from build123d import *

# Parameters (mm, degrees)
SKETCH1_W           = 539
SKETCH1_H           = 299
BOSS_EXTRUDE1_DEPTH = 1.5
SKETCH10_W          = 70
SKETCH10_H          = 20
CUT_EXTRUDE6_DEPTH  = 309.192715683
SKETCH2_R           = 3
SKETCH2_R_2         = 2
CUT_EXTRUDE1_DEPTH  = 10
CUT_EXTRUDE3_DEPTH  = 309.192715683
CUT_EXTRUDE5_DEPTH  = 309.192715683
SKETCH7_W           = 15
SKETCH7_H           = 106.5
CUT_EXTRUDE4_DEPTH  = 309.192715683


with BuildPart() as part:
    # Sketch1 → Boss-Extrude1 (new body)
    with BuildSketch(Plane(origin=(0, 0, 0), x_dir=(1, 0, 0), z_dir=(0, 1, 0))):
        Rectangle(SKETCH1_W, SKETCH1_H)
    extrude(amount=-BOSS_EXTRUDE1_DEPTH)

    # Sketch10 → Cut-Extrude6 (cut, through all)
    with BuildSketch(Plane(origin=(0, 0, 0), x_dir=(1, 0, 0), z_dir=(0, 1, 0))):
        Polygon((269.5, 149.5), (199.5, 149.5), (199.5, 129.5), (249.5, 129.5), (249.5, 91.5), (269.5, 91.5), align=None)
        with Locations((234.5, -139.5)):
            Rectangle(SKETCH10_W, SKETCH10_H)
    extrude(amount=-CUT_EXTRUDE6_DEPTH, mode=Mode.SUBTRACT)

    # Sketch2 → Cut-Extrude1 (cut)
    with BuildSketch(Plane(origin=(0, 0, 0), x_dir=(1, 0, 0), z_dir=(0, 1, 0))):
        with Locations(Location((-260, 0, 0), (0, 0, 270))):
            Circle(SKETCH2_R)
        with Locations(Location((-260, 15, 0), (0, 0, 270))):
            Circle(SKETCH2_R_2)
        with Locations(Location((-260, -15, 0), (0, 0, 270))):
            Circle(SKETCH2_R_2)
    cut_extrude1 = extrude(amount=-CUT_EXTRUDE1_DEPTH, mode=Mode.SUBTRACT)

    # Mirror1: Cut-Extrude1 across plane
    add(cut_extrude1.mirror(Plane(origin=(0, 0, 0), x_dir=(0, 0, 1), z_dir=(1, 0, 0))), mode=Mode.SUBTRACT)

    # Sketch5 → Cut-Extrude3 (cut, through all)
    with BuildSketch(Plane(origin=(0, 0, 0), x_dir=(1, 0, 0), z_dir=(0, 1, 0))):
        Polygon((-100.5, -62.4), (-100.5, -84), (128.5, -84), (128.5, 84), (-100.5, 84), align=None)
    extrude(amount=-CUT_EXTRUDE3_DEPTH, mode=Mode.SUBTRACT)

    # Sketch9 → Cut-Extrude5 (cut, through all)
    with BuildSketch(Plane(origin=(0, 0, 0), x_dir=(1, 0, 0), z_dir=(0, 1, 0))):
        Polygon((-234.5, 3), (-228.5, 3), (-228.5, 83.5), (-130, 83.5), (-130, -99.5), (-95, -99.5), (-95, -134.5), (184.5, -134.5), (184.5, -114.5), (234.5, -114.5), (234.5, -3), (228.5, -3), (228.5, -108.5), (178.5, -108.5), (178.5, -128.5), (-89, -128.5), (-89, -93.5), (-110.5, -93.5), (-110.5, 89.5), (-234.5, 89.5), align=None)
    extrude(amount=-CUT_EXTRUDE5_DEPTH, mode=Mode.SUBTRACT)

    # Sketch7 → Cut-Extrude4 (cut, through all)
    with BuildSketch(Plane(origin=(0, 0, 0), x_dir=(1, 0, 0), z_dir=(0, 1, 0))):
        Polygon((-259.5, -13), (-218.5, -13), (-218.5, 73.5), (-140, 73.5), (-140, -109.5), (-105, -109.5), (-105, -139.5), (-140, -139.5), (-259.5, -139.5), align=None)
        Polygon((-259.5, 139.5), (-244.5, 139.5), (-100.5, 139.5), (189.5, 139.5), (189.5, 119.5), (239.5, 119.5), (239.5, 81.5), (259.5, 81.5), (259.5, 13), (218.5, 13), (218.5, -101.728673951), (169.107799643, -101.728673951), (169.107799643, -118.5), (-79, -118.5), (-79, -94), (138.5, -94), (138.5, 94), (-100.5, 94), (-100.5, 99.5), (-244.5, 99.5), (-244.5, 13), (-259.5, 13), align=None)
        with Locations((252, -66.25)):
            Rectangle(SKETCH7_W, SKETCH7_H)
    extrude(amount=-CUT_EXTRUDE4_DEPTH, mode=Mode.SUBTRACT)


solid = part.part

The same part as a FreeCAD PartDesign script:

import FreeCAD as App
import Part
import Sketcher
from FreeCAD import Vector

doc = App.newDocument("Part")
params = doc.addObject("Spreadsheet::Sheet", "Params")
for row, (alias, value) in enumerate([
    ("sketch1_width", "539 mm"),
    ("sketch1_height", "299 mm"),
    ("pad1_length", "1.5 mm"),
    ("sketch2_width", "70 mm"),
    ("sketch2_width2", "50 mm"),
    ("sketch2_height", "38 mm"),
    ("sketch3_diameter", "6 mm"),
    ("sketch3_diameter2", "4 mm"),
    ("pocket2_length", "10 mm"),
    ("sketch4_width", "229 mm"),
    ("sketch4_height", "168 mm"),
    ("sketch5_width", "6 mm"),
    ("sketch5_width2", "35 mm"),
    ("sketch5_width3", "50 mm"),
    ("sketch5_width4", "124 mm"),
    ("sketch5_height", "183 mm"),
    ("sketch6_width", "41 mm"),
    ("sketch6_width2", "35 mm"),
    ("sketch6_width3", "449 mm"),
    ("sketch6_width4", "15 mm"),
    ("sketch6_width5", "144 mm"),
], start=1):
    params.set(f"A{row}", alias)
    params.set(f"B{row}", "=" + value)
    params.setAlias(f"B{row}", alias)

body = doc.addObject("PartDesign::Body", "Body")

sketch1 = body.newObject("Sketcher::SketchObject", "Sketch")
sketch1.AttachmentSupport = (doc.getObject("XZ_Plane"), [""])
sketch1.MapMode = "FlatFace"
sketch1.addGeometry(Part.LineSegment(Vector(-270, -150, 0), Vector(-270, 150, 0)), False)
sketch1.addGeometry(Part.LineSegment(Vector(-270, 150, 0), Vector(270, 150, 0)), False)
sketch1.addGeometry(Part.LineSegment(Vector(270, 150, 0), Vector(270, -150, 0)), False)
sketch1.addGeometry(Part.LineSegment(Vector(270, -150, 0), Vector(-270, -150, 0)), False)
sketch1.addConstraint(Sketcher.Constraint("Coincident", 0, 2, 1, 1))
sketch1.addConstraint(Sketcher.Constraint("Coincident", 1, 2, 2, 1))
sketch1.addConstraint(Sketcher.Constraint("Coincident", 2, 2, 3, 1))
sketch1.addConstraint(Sketcher.Constraint("Coincident", 3, 2, 0, 1))
sketch1.addConstraint(Sketcher.Constraint("Vertical", 0))
sketch1.addConstraint(Sketcher.Constraint("Horizontal", 1))
sketch1.addConstraint(Sketcher.Constraint("Vertical", 2))
sketch1.addConstraint(Sketcher.Constraint("Horizontal", 3))
sketch1.addConstraint(Sketcher.Constraint("Symmetric", 0, 2, 2, 2, -1, 1))
sketch1.addConstraint(Sketcher.Constraint("DistanceX", 1, 1, 1, 2, 539.0))
sketch1.addConstraint(Sketcher.Constraint("DistanceY", 0, 1, 0, 2, 299.0))
sketch1.setExpression("Constraints[9]", "Params.sketch1_width")
sketch1.setExpression("Constraints[10]", "Params.sketch1_height")
pad1 = body.newObject("PartDesign::Pad", "Pad")
pad1.Profile = sketch1
pad1.setExpression("Length", "Params.pad1_length")

sketch2 = body.newObject("Sketcher::SketchObject", "Sketch001")
sketch2.AttachmentSupport = (doc.getObject("XZ_Plane"), [""])
sketch2.MapMode = "FlatFace"
sketch2.addGeometry(Part.LineSegment(Vector(270, -150, 0), Vector(200, -150, 0)), False)
sketch2.addGeometry(Part.LineSegment(Vector(200, -150, 0), Vector(200, -130, 0)), False)
sketch2.addGeometry(Part.LineSegment(Vector(200, -130, 0), Vector(250, -130, 0)), False)
sketch2.addGeometry(Part.LineSegment(Vector(250, -130, 0), Vector(250, -92, 0)), False)
sketch2.addGeometry(Part.LineSegment(Vector(250, -92, 0), Vector(270, -92, 0)), False)
sketch2.addGeometry(Part.LineSegment(Vector(270, -92, 0), Vector(270, -150, 0)), False)
sketch2.addGeometry(Part.LineSegment(Vector(200, 130, 0), Vector(200, 150, 0)), False)
sketch2.addGeometry(Part.LineSegment(Vector(200, 150, 0), Vector(270, 150, 0)), False)
sketch2.addGeometry(Part.LineSegment(Vector(270, 150, 0), Vector(270, 130, 0)), False)
sketch2.addGeometry(Part.LineSegment(Vector(270, 130, 0), Vector(200, 130, 0)), False)
sketch2.addConstraint(Sketcher.Constraint("Coincident", 0, 2, 1, 1))
sketch2.addConstraint(Sketcher.Constraint("Coincident", 1, 2, 2, 1))
sketch2.addConstraint(Sketcher.Constraint("Coincident", 2, 2, 3, 1))
sketch2.addConstraint(Sketcher.Constraint("Coincident", 3, 2, 4, 1))
sketch2.addConstraint(Sketcher.Constraint("Coincident", 4, 2, 5, 1))
sketch2.addConstraint(Sketcher.Constraint("Coincident", 5, 2, 0, 1))
sketch2.addConstraint(Sketcher.Constraint("Coincident", 6, 2, 7, 1))
sketch2.addConstraint(Sketcher.Constraint("Coincident", 7, 2, 8, 1))
sketch2.addConstraint(Sketcher.Constraint("Coincident", 8, 2, 9, 1))
sketch2.addConstraint(Sketcher.Constraint("Coincident", 9, 2, 6, 1))
sketch2.addConstraint(Sketcher.Constraint("Horizontal", 0))
sketch2.addConstraint(Sketcher.Constraint("Vertical", 1))
sketch2.addConstraint(Sketcher.Constraint("Horizontal", 2))
sketch2.addConstraint(Sketcher.Constraint("Vertical", 3))
sketch2.addConstraint(Sketcher.Constraint("Horizontal", 4))
sketch2.addConstraint(Sketcher.Constraint("Vertical", 5))
sketch2.addConstraint(Sketcher.Constraint("Vertical", 6))
sketch2.addConstraint(Sketcher.Constraint("Horizontal", 7))
sketch2.addConstraint(Sketcher.Constraint("Vertical", 8))
sketch2.addConstraint(Sketcher.Constraint("Horizontal", 9))
sketch2.addConstraint(Sketcher.Constraint("Symmetric", 0, 2, 6, 2, -1))
sketch2.addConstraint(Sketcher.Constraint("Vertical", 5, 2, 7, 2))
sketch2.addConstraint(Sketcher.Constraint("Equal", 4, 1))
sketch2.addConstraint(Sketcher.Constraint("Equal", 1, 6))
sketch2.addConstraint(Sketcher.Constraint("DistanceX", 0, 2, 0, 1, 70.0))
sketch2.addConstraint(Sketcher.Constraint("DistanceX", 2, 1, 2, 2, 50.0))
sketch2.addConstraint(Sketcher.Constraint("DistanceY", 3, 1, 3, 2, 38.0))
sketch2.addConstraint(Sketcher.Constraint("DistanceY", 3, 2, 6, 2, 241.0))
sketch2.addConstraint(Sketcher.Constraint("DistanceX", -1, 1, 0, 2, 199.5))
sketch2.setExpression("Constraints[24]", "Params.sketch2_width")
sketch2.setExpression("Constraints[25]", "Params.sketch2_width2")
sketch2.setExpression("Constraints[26]", "Params.sketch2_height")
pocket1 = body.newObject("PartDesign::Pocket", "Pocket")
pocket1.Profile = sketch2
pocket1.Type = "ThroughAll"
pocket1.Reversed = True

sketch3 = body.newObject("Sketcher::SketchObject", "Sketch002")
sketch3.AttachmentSupport = (doc.getObject("XZ_Plane"), [""])
sketch3.MapMode = "FlatFace"
sketch3.addGeometry(Part.Circle(Vector(-260, 0, 0), Vector(0, 0, 1), 3), False)
sketch3.addGeometry(Part.Circle(Vector(-260, -15, 0), Vector(0, 0, 1), 2), False)
sketch3.addGeometry(Part.Circle(Vector(-260, 15, 0), Vector(0, 0, 1), 2), False)
sketch3.addConstraint(Sketcher.Constraint("Equal", 1, 2))
sketch3.addConstraint(Sketcher.Constraint("Symmetric", 1, 3, 2, 3, -1))
sketch3.addConstraint(Sketcher.Constraint("PointOnObject", 0, 3, -1))
sketch3.addConstraint(Sketcher.Constraint("Vertical", 0, 3, 1, 3))
sketch3.addConstraint(Sketcher.Constraint("Diameter", 0, 6.0))
sketch3.addConstraint(Sketcher.Constraint("Diameter", 1, 4.0))
sketch3.addConstraint(Sketcher.Constraint("DistanceX", 0, 3, -1, 1, 260.0))
sketch3.addConstraint(Sketcher.Constraint("DistanceY", 1, 3, -1, 1, 15.0))
sketch3.setExpression("Constraints[4]", "Params.sketch3_diameter")
sketch3.setExpression("Constraints[5]", "Params.sketch3_diameter2")
pocket2 = body.newObject("PartDesign::Pocket", "Pocket001")
pocket2.Profile = sketch3
pocket2.setExpression("Length", "Params.pocket2_length")
pocket2.Reversed = True
doc.recompute()

mirrored = body.newObject("PartDesign::Mirrored", "Mirrored")
mirrored.Originals = [pocket2]
mirrored.MirrorPlane = (doc.getObject("YZ_Plane"), [""])
body.Tip = mirrored

sketch4 = body.newObject("Sketcher::SketchObject", "Sketch003")
sketch4.AttachmentSupport = (doc.getObject("XZ_Plane"), [""])
sketch4.MapMode = "FlatFace"
sketch4.addGeometry(Part.LineSegment(Vector(-100, 84, 0), Vector(128, 84, 0)), False)
sketch4.addGeometry(Part.LineSegment(Vector(128, 84, 0), Vector(128, -84, 0)), False)
sketch4.addGeometry(Part.LineSegment(Vector(128, -84, 0), Vector(-100, -84, 0)), False)
sketch4.addGeometry(Part.LineSegment(Vector(-100, -84, 0), Vector(-100, 84, 0)), False)
sketch4.addConstraint(Sketcher.Constraint("Coincident", 0, 2, 1, 1))
sketch4.addConstraint(Sketcher.Constraint("Coincident", 1, 2, 2, 1))
sketch4.addConstraint(Sketcher.Constraint("Coincident", 2, 2, 3, 1))
sketch4.addConstraint(Sketcher.Constraint("Coincident", 3, 2, 0, 1))
sketch4.addConstraint(Sketcher.Constraint("Horizontal", 0))
sketch4.addConstraint(Sketcher.Constraint("Vertical", 1))
sketch4.addConstraint(Sketcher.Constraint("Horizontal", 2))
sketch4.addConstraint(Sketcher.Constraint("Vertical", 3))
sketch4.addConstraint(Sketcher.Constraint("DistanceX", 0, 1, 0, 2, 229.0))
sketch4.addConstraint(Sketcher.Constraint("DistanceY", 1, 2, 1, 1, 168.0))
sketch4.addConstraint(Sketcher.Constraint("DistanceY", -1, 1, 0, 2, 84.0))
sketch4.addConstraint(Sketcher.Constraint("DistanceX", -1, 1, 0, 2, 128.5))
sketch4.setExpression("Constraints[8]", "Params.sketch4_width")
sketch4.setExpression("Constraints[9]", "Params.sketch4_height")
pocket3 = body.newObject("PartDesign::Pocket", "Pocket002")
pocket3.Profile = sketch4
pocket3.Type = "ThroughAll"
pocket3.Reversed = True

sketch5 = body.newObject("Sketcher::SketchObject", "Sketch004")
sketch5.AttachmentSupport = (doc.getObject("XZ_Plane"), [""])
sketch5.MapMode = "FlatFace"
sketch5.addGeometry(Part.LineSegment(Vector(-234, -3, 0), Vector(-228, -3, 0)), False)
sketch5.addGeometry(Part.LineSegment(Vector(-228, -3, 0), Vector(-228, -84, 0)), False)
sketch5.addGeometry(Part.LineSegment(Vector(-228, -84, 0), Vector(-130, -84, 0)), False)
sketch5.addGeometry(Part.LineSegment(Vector(-130, -84, 0), Vector(-130, 100, 0)), False)
sketch5.addGeometry(Part.LineSegment(Vector(-130, 100, 0), Vector(-95, 100, 0)), False)
sketch5.addGeometry(Part.LineSegment(Vector(-95, 100, 0), Vector(-95, 134, 0)), False)
sketch5.addGeometry(Part.LineSegment(Vector(-95, 134, 0), Vector(184, 134, 0)), False)
sketch5.addGeometry(Part.LineSegment(Vector(184, 134, 0), Vector(184, 114, 0)), False)
sketch5.addGeometry(Part.LineSegment(Vector(184, 114, 0), Vector(234, 114, 0)), False)
sketch5.addGeometry(Part.LineSegment(Vector(234, 114, 0), Vector(234, 3, 0)), False)
sketch5.addGeometry(Part.LineSegment(Vector(234, 3, 0), Vector(228, 3, 0)), False)
sketch5.addGeometry(Part.LineSegment(Vector(228, 3, 0), Vector(228, 108, 0)), False)
sketch5.addGeometry(Part.LineSegment(Vector(228, 108, 0), Vector(178, 108, 0)), False)
sketch5.addGeometry(Part.LineSegment(Vector(178, 108, 0), Vector(178, 128, 0)), False)
sketch5.addGeometry(Part.LineSegment(Vector(178, 128, 0), Vector(-89, 128, 0)), False)
sketch5.addGeometry(Part.LineSegment(Vector(-89, 128, 0), Vector(-89, 94, 0)), False)
sketch5.addGeometry(Part.LineSegment(Vector(-89, 94, 0), Vector(-110, 94, 0)), False)
sketch5.addGeometry(Part.LineSegment(Vector(-110, 94, 0), Vector(-110, -90, 0)), False)
sketch5.addGeometry(Part.LineSegment(Vector(-110, -90, 0), Vector(-234, -90, 0)), False)
sketch5.addGeometry(Part.LineSegment(Vector(-234, -90, 0), Vector(-234, -3, 0)), False)
sketch5.addConstraint(Sketcher.Constraint("Coincident", 0, 2, 1, 1))
sketch5.addConstraint(Sketcher.Constraint("Coincident", 1, 2, 2, 1))
sketch5.addConstraint(Sketcher.Constraint("Coincident", 2, 2, 3, 1))
sketch5.addConstraint(Sketcher.Constraint("Coincident", 3, 2, 4, 1))
sketch5.addConstraint(Sketcher.Constraint("Coincident", 4, 2, 5, 1))
sketch5.addConstraint(Sketcher.Constraint("Coincident", 5, 2, 6, 1))
sketch5.addConstraint(Sketcher.Constraint("Coincident", 6, 2, 7, 1))
sketch5.addConstraint(Sketcher.Constraint("Coincident", 7, 2, 8, 1))
sketch5.addConstraint(Sketcher.Constraint("Coincident", 8, 2, 9, 1))
sketch5.addConstraint(Sketcher.Constraint("Coincident", 9, 2, 10, 1))
sketch5.addConstraint(Sketcher.Constraint("Coincident", 10, 2, 11, 1))
sketch5.addConstraint(Sketcher.Constraint("Coincident", 11, 2, 12, 1))
sketch5.addConstraint(Sketcher.Constraint("Coincident", 12, 2, 13, 1))
sketch5.addConstraint(Sketcher.Constraint("Coincident", 13, 2, 14, 1))
sketch5.addConstraint(Sketcher.Constraint("Coincident", 14, 2, 15, 1))
sketch5.addConstraint(Sketcher.Constraint("Coincident", 15, 2, 16, 1))
sketch5.addConstraint(Sketcher.Constraint("Coincident", 16, 2, 17, 1))
sketch5.addConstraint(Sketcher.Constraint("Coincident", 17, 2, 18, 1))
sketch5.addConstraint(Sketcher.Constraint("Coincident", 18, 2, 19, 1))
sketch5.addConstraint(Sketcher.Constraint("Coincident", 19, 2, 0, 1))
sketch5.addConstraint(Sketcher.Constraint("Horizontal", 0))
sketch5.addConstraint(Sketcher.Constraint("Vertical", 1))
sketch5.addConstraint(Sketcher.Constraint("Horizontal", 2))
sketch5.addConstraint(Sketcher.Constraint("Vertical", 3))
sketch5.addConstraint(Sketcher.Constraint("Horizontal", 4))
sketch5.addConstraint(Sketcher.Constraint("Vertical", 5))
sketch5.addConstraint(Sketcher.Constraint("Horizontal", 6))
sketch5.addConstraint(Sketcher.Constraint("Vertical", 7))
sketch5.addConstraint(Sketcher.Constraint("Horizontal", 8))
sketch5.addConstraint(Sketcher.Constraint("Vertical", 9))
sketch5.addConstraint(Sketcher.Constraint("Horizontal", 10))
sketch5.addConstraint(Sketcher.Constraint("Vertical", 11))
sketch5.addConstraint(Sketcher.Constraint("Horizontal", 12))
sketch5.addConstraint(Sketcher.Constraint("Vertical", 13))
sketch5.addConstraint(Sketcher.Constraint("Horizontal", 14))
sketch5.addConstraint(Sketcher.Constraint("Vertical", 15))
sketch5.addConstraint(Sketcher.Constraint("Horizontal", 16))
sketch5.addConstraint(Sketcher.Constraint("Vertical", 17))
sketch5.addConstraint(Sketcher.Constraint("Horizontal", 18))
sketch5.addConstraint(Sketcher.Constraint("Vertical", 19))
sketch5.addConstraint(Sketcher.Constraint("Symmetric", 0, 2, 10, 2, -1, 1))
sketch5.addConstraint(Sketcher.Constraint("Equal", 0, 10))
sketch5.addConstraint(Sketcher.Constraint("Equal", 8, 12))
sketch5.addConstraint(Sketcher.Constraint("Equal", 4, 5))
sketch5.addConstraint(Sketcher.Constraint("Equal", 7, 13))
sketch5.addConstraint(Sketcher.Constraint("Equal", 5, 15))
sketch5.addConstraint(Sketcher.Constraint("Equal", 3, 17))
sketch5.addConstraint(Sketcher.Constraint("DistanceX", 0, 1, 0, 2, 6.0))
sketch5.addConstraint(Sketcher.Constraint("DistanceX", 4, 1, 4, 2, 35.0))
sketch5.addConstraint(Sketcher.Constraint("DistanceX", 8, 1, 8, 2, 50.0))
sketch5.addConstraint(Sketcher.Constraint("DistanceX", 18, 2, 18, 1, 124.0))
sketch5.addConstraint(Sketcher.Constraint("DistanceY", 3, 1, 3, 2, 183.0))
sketch5.addConstraint(Sketcher.Constraint("DistanceY", 7, 2, 7, 1, 20.0))
sketch5.addConstraint(Sketcher.Constraint("DistanceX", 2, 1, 2, 2, 98.5))
sketch5.addConstraint(Sketcher.Constraint("DistanceX", 6, 1, 6, 2, 279.5))
sketch5.addConstraint(Sketcher.Constraint("DistanceX", 14, 2, 14, 1, 267.5))
sketch5.addConstraint(Sketcher.Constraint("DistanceY", 1, 2, 1, 1, 80.5))
sketch5.addConstraint(Sketcher.Constraint("DistanceY", 9, 2, 9, 1, 111.5))
sketch5.addConstraint(Sketcher.Constraint("DistanceY", 11, 1, 11, 2, 105.5))
sketch5.setExpression("Constraints[47]", "Params.sketch5_width")
sketch5.setExpression("Constraints[48]", "Params.sketch5_width2")
sketch5.setExpression("Constraints[49]", "Params.sketch5_width3")
sketch5.setExpression("Constraints[50]", "Params.sketch5_width4")
sketch5.setExpression("Constraints[51]", "Params.sketch5_height")
pocket4 = body.newObject("PartDesign::Pocket", "Pocket003")
pocket4.Profile = sketch5
pocket4.Type = "ThroughAll"
pocket4.Reversed = True

sketch6 = body.newObject("Sketcher::SketchObject", "Sketch005")
sketch6.AttachmentSupport = (doc.getObject("XZ_Plane"), [""])
sketch6.MapMode = "FlatFace"
sketch6.addGeometry(Part.LineSegment(Vector(-218, 13, 0), Vector(-260, 13, 0)), False)
sketch6.addGeometry(Part.LineSegment(Vector(-260, 13, 0), Vector(-260, 140, 0)), False)
sketch6.addGeometry(Part.LineSegment(Vector(-260, 140, 0), Vector(-105, 140, 0)), False)
sketch6.addGeometry(Part.LineSegment(Vector(-105, 140, 0), Vector(-105, 110, 0)), False)
sketch6.addGeometry(Part.LineSegment(Vector(-105, 110, 0), Vector(-140, 110, 0)), False)
sketch6.addGeometry(Part.LineSegment(Vector(-140, 110, 0), Vector(-140, -74, 0)), False)
sketch6.addGeometry(Part.LineSegment(Vector(-140, -74, 0), Vector(-218, -74, 0)), False)
sketch6.addGeometry(Part.LineSegment(Vector(-218, -74, 0), Vector(-218, 13, 0)), False)
sketch6.addGeometry(Part.LineSegment(Vector(190, -140, 0), Vector(-260, -140, 0)), False)
sketch6.addGeometry(Part.LineSegment(Vector(-260, -140, 0), Vector(-260, -13, 0)), False)
sketch6.addGeometry(Part.LineSegment(Vector(-260, -13, 0), Vector(-244, -13, 0)), False)
sketch6.addGeometry(Part.LineSegment(Vector(-244, -13, 0), Vector(-244, -100, 0)), False)
sketch6.addGeometry(Part.LineSegment(Vector(-244, -100, 0), Vector(-100, -100, 0)), False)
sketch6.addGeometry(Part.LineSegment(Vector(-100, -100, 0), Vector(-100, -94, 0)), False)
sketch6.addGeometry(Part.LineSegment(Vector(-100, -94, 0), Vector(138, -94, 0)), False)
sketch6.addGeometry(Part.LineSegment(Vector(138, -94, 0), Vector(138, 94, 0)), False)
sketch6.addGeometry(Part.LineSegment(Vector(138, 94, 0), Vector(-79, 94, 0)), False)
sketch6.addGeometry(Part.LineSegment(Vector(-79, 94, 0), Vector(-79, 118, 0)), False)
sketch6.addGeometry(Part.LineSegment(Vector(-79, 118, 0), Vector(169, 118, 0)), False)
sketch6.addGeometry(Part.LineSegment(Vector(169, 118, 0), Vector(169, 102, 0)), False)
sketch6.addGeometry(Part.LineSegment(Vector(169, 102, 0), Vector(218, 102, 0)), False)
sketch6.addGeometry(Part.LineSegment(Vector(218, 102, 0), Vector(218, -13, 0)), False)
sketch6.addGeometry(Part.LineSegment(Vector(218, -13, 0), Vector(260, -13, 0)), False)
sketch6.addGeometry(Part.LineSegment(Vector(260, -13, 0), Vector(260, -82, 0)), False)
sketch6.addGeometry(Part.LineSegment(Vector(260, -82, 0), Vector(240, -82, 0)), False)
sketch6.addGeometry(Part.LineSegment(Vector(240, -82, 0), Vector(240, -120, 0)), False)
sketch6.addGeometry(Part.LineSegment(Vector(240, -120, 0), Vector(190, -120, 0)), False)
sketch6.addGeometry(Part.LineSegment(Vector(190, -120, 0), Vector(190, -140, 0)), False)
sketch6.addGeometry(Part.LineSegment(Vector(244, 13, 0), Vector(244, 120, 0)), False)
sketch6.addGeometry(Part.LineSegment(Vector(244, 120, 0), Vector(260, 120, 0)), False)
sketch6.addGeometry(Part.LineSegment(Vector(260, 120, 0), Vector(260, 13, 0)), False)
sketch6.addGeometry(Part.LineSegment(Vector(260, 13, 0), Vector(244, 13, 0)), False)
sketch6.addConstraint(Sketcher.Constraint("Coincident", 0, 2, 1, 1))
sketch6.addConstraint(Sketcher.Constraint("Coincident", 1, 2, 2, 1))
sketch6.addConstraint(Sketcher.Constraint("Coincident", 2, 2, 3, 1))
sketch6.addConstraint(Sketcher.Constraint("Coincident", 3, 2, 4, 1))
sketch6.addConstraint(Sketcher.Constraint("Coincident", 4, 2, 5, 1))
sketch6.addConstraint(Sketcher.Constraint("Coincident", 5, 2, 6, 1))
sketch6.addConstraint(Sketcher.Constraint("Coincident", 6, 2, 7, 1))
sketch6.addConstraint(Sketcher.Constraint("Coincident", 7, 2, 0, 1))
sketch6.addConstraint(Sketcher.Constraint("Coincident", 8, 2, 9, 1))
sketch6.addConstraint(Sketcher.Constraint("Coincident", 9, 2, 10, 1))
sketch6.addConstraint(Sketcher.Constraint("Coincident", 10, 2, 11, 1))
sketch6.addConstraint(Sketcher.Constraint("Coincident", 11, 2, 12, 1))
sketch6.addConstraint(Sketcher.Constraint("Coincident", 12, 2, 13, 1))
sketch6.addConstraint(Sketcher.Constraint("Coincident", 13, 2, 14, 1))
sketch6.addConstraint(Sketcher.Constraint("Coincident", 14, 2, 15, 1))
sketch6.addConstraint(Sketcher.Constraint("Coincident", 15, 2, 16, 1))
sketch6.addConstraint(Sketcher.Constraint("Coincident", 16, 2, 17, 1))
sketch6.addConstraint(Sketcher.Constraint("Coincident", 17, 2, 18, 1))
sketch6.addConstraint(Sketcher.Constraint("Coincident", 18, 2, 19, 1))
sketch6.addConstraint(Sketcher.Constraint("Coincident", 19, 2, 20, 1))
sketch6.addConstraint(Sketcher.Constraint("Coincident", 20, 2, 21, 1))
sketch6.addConstraint(Sketcher.Constraint("Coincident", 21, 2, 22, 1))
sketch6.addConstraint(Sketcher.Constraint("Coincident", 22, 2, 23, 1))
sketch6.addConstraint(Sketcher.Constraint("Coincident", 23, 2, 24, 1))
sketch6.addConstraint(Sketcher.Constraint("Coincident", 24, 2, 25, 1))
sketch6.addConstraint(Sketcher.Constraint("Coincident", 25, 2, 26, 1))
sketch6.addConstraint(Sketcher.Constraint("Coincident", 26, 2, 27, 1))
sketch6.addConstraint(Sketcher.Constraint("Coincident", 27, 2, 8, 1))
sketch6.addConstraint(Sketcher.Constraint("Coincident", 28, 2, 29, 1))
sketch6.addConstraint(Sketcher.Constraint("Coincident", 29, 2, 30, 1))
sketch6.addConstraint(Sketcher.Constraint("Coincident", 30, 2, 31, 1))
sketch6.addConstraint(Sketcher.Constraint("Coincident", 31, 2, 28, 1))
sketch6.addConstraint(Sketcher.Constraint("Horizontal", 0))
sketch6.addConstraint(Sketcher.Constraint("Vertical", 1))
sketch6.addConstraint(Sketcher.Constraint("Horizontal", 2))
sketch6.addConstraint(Sketcher.Constraint("Vertical", 3))
sketch6.addConstraint(Sketcher.Constraint("Horizontal", 4))
sketch6.addConstraint(Sketcher.Constraint("Vertical", 5))
sketch6.addConstraint(Sketcher.Constraint("Horizontal", 6))
sketch6.addConstraint(Sketcher.Constraint("Vertical", 7))
sketch6.addConstraint(Sketcher.Constraint("Horizontal", 8))
sketch6.addConstraint(Sketcher.Constraint("Vertical", 9))
sketch6.addConstraint(Sketcher.Constraint("Horizontal", 10))
sketch6.addConstraint(Sketcher.Constraint("Vertical", 11))
sketch6.addConstraint(Sketcher.Constraint("Horizontal", 12))
sketch6.addConstraint(Sketcher.Constraint("Vertical", 13))
sketch6.addConstraint(Sketcher.Constraint("Horizontal", 14))
sketch6.addConstraint(Sketcher.Constraint("Vertical", 15))
sketch6.addConstraint(Sketcher.Constraint("Horizontal", 16))
sketch6.addConstraint(Sketcher.Constraint("Vertical", 17))
sketch6.addConstraint(Sketcher.Constraint("Horizontal", 18))
sketch6.addConstraint(Sketcher.Constraint("Vertical", 19))
sketch6.addConstraint(Sketcher.Constraint("Horizontal", 20))
sketch6.addConstraint(Sketcher.Constraint("Vertical", 21))
sketch6.addConstraint(Sketcher.Constraint("Horizontal", 22))
sketch6.addConstraint(Sketcher.Constraint("Vertical", 23))
sketch6.addConstraint(Sketcher.Constraint("Horizontal", 24))
sketch6.addConstraint(Sketcher.Constraint("Vertical", 25))
sketch6.addConstraint(Sketcher.Constraint("Horizontal", 26))
sketch6.addConstraint(Sketcher.Constraint("Vertical", 27))
sketch6.addConstraint(Sketcher.Constraint("Vertical", 28))
sketch6.addConstraint(Sketcher.Constraint("Horizontal", 29))
sketch6.addConstraint(Sketcher.Constraint("Vertical", 30))
sketch6.addConstraint(Sketcher.Constraint("Horizontal", 31))
sketch6.addConstraint(Sketcher.Constraint("Symmetric", 7, 2, 21, 2, -1, 1))
sketch6.addConstraint(Sketcher.Constraint("Symmetric", 9, 2, 30, 2, -1, 1))
sketch6.addConstraint(Sketcher.Constraint("Symmetric", 9, 2, 22, 2, -2))
sketch6.addConstraint(Sketcher.Constraint("Symmetric", 1, 2, 8, 2, -1))
sketch6.addConstraint(Sketcher.Constraint("Equal", 10, 29))
sketch6.addConstraint(Sketcher.Constraint("Equal", 7, 11))
sketch6.addConstraint(Sketcher.Constraint("Equal", 24, 27))
sketch6.addConstraint(Sketcher.Constraint("DistanceX", 0, 2, 0, 1, 41.0))
sketch6.addConstraint(Sketcher.Constraint("DistanceX", 4, 2, 4, 1, 35.0))
sketch6.addConstraint(Sketcher.Constraint("DistanceX", 8, 2, 8, 1, 449.0))
sketch6.addConstraint(Sketcher.Constraint("DistanceX", 10, 1, 10, 2, 15.0))
sketch6.addConstraint(Sketcher.Constraint("DistanceX", 12, 1, 12, 2, 144.0))
sketch6.addConstraint(Sketcher.Constraint("DistanceX", 14, 1, 14, 2, 239.0))
sketch6.addConstraint(Sketcher.Constraint("DistanceX", 24, 2, 24, 1, 20.0))
sketch6.addConstraint(Sketcher.Constraint("DistanceX", 26, 2, 26, 1, 50.0))
sketch6.addConstraint(Sketcher.Constraint("DistanceY", 3, 2, 3, 1, 30.0))
sketch6.addConstraint(Sketcher.Constraint("DistanceY", 5, 2, 5, 1, 183.0))
sketch6.addConstraint(Sketcher.Constraint("DistanceY", 15, 1, 15, 2, 188.0))
sketch6.addConstraint(Sketcher.Constraint("DistanceY", 25, 2, 25, 1, 38.0))
sketch6.addConstraint(Sketcher.Constraint("DistanceX", 2, 1, 2, 2, 154.5))
sketch6.addConstraint(Sketcher.Constraint("DistanceX", 16, 2, 16, 1, 217.5))
sketch6.addConstraint(Sketcher.Constraint("DistanceY", 1, 1, 1, 2, 126.5))
sketch6.addConstraint(Sketcher.Constraint("DistanceY", 13, 1, 13, 2, 5.5))
sketch6.addConstraint(Sketcher.Constraint("DistanceY", 17, 1, 17, 2, 24.5))
sketch6.addConstraint(Sketcher.Constraint("DistanceY", 28, 1, 28, 2, 106.5))
sketch6.addConstraint(Sketcher.Constraint("DistanceY", -1, 1, 0, 2, 13.0))
sketch6.addConstraint(Sketcher.Constraint("DistanceX", 18, 1, 18, 2, 248.1078))
sketch6.addConstraint(Sketcher.Constraint("DistanceY", 19, 2, 19, 1, 16.771326))
sketch6.setExpression("Constraints[71]", "Params.sketch6_width")
sketch6.setExpression("Constraints[72]", "Params.sketch6_width2")
sketch6.setExpression("Constraints[73]", "Params.sketch6_width3")
sketch6.setExpression("Constraints[74]", "Params.sketch6_width4")
sketch6.setExpression("Constraints[75]", "Params.sketch6_width5")
pocket5 = body.newObject("PartDesign::Pocket", "Pocket004")
pocket5.Profile = sketch6
pocket5.Type = "ThroughAll"
pocket5.Reversed = True

doc.recompute()
